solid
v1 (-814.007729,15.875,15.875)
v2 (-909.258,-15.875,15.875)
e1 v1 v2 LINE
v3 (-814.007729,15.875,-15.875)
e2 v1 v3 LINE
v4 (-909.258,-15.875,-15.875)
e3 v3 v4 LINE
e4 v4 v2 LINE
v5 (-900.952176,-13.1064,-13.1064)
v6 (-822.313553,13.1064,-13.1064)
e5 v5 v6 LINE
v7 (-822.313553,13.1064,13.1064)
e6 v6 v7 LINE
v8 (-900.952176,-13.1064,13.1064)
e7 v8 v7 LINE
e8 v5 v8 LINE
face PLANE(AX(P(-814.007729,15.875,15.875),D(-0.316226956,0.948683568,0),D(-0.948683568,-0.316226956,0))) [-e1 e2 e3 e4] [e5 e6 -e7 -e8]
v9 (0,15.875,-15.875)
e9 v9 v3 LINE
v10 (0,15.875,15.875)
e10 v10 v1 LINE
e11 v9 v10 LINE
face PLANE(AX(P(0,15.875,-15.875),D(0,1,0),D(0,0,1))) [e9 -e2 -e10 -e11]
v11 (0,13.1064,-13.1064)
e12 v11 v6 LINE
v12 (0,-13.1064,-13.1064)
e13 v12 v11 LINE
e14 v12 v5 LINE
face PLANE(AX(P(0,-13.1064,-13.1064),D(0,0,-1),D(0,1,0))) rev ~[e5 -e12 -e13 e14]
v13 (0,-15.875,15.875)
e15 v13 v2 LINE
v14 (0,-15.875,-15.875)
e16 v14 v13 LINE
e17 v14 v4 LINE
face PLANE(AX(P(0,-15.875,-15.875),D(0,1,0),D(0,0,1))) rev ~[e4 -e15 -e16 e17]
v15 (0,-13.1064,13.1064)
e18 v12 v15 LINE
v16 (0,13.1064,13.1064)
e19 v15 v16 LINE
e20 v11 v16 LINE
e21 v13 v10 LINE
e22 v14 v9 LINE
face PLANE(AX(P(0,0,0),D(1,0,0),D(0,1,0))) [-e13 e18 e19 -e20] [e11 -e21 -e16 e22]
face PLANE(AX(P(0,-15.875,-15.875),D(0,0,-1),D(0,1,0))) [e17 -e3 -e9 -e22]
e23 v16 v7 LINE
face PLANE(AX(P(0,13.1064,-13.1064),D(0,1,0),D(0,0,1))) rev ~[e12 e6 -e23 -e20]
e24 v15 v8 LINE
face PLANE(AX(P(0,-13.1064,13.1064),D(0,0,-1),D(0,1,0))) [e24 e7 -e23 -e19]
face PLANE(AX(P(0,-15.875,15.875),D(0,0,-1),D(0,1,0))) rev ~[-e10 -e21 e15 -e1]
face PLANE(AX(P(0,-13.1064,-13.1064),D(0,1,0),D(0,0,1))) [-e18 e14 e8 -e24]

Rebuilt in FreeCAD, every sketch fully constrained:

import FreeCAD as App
import Part
import Sketcher
from FreeCAD import Vector
Q = App.Units.Quantity

doc = App.newDocument("Part")
params = doc.addObject("Spreadsheet::Sheet", "Params")
for row, (alias, value) in enumerate([
    ("sketch1_width", "1.25 in"),
    ("sketch1_width2", "1.032 in"),
    ("pad1_length", "909.258 mm"),
    ("sketch2_height", "1.25 in"),
    ("pocket1_length", "1.25 in"),
], start=1):
    params.set(f"A{row}", alias)
    params.set(f"B{row}", "=" + value)
    params.setAlias(f"B{row}", alias)

body = doc.addObject("PartDesign::Body", "Body")

# Sketch on YZ plane
sketch1 = body.newObject("Sketcher::SketchObject", "Sketch")
sketch1.AttachmentSupport = (doc.getObject("YZ_Plane"), [""])
sketch1.MapMode = "FlatFace"
sketch1.addGeometry([
    Part.LineSegment(Vector(-16, 16, 0), Vector(-16, -16, 0)),  # 0
    Part.LineSegment(Vector(-16, -16, 0), Vector(16, -16, 0)),  # 1
    Part.LineSegment(Vector(16, -16, 0), Vector(16, 16, 0)),  # 2
    Part.LineSegment(Vector(16, 16, 0), Vector(-16, 16, 0)),  # 3
    Part.LineSegment(Vector(13, -13, 0), Vector(-13, -13, 0)),  # 4
    Part.LineSegment(Vector(-13, -13, 0), Vector(-13, 13, 0)),  # 5
    Part.LineSegment(Vector(-13, 13, 0), Vector(13, 13, 0)),  # 6
    Part.LineSegment(Vector(13, 13, 0), Vector(13, -13, 0)),  # 7
], False)
sketch1.addConstraint([
    Sketcher.Constraint("Coincident", 0, 2, 1, 1),
    Sketcher.Constraint("Coincident", 1, 2, 2, 1),
    Sketcher.Constraint("Coincident", 2, 2, 3, 1),
    Sketcher.Constraint("Coincident", 3, 2, 0, 1),
    Sketcher.Constraint("Coincident", 4, 2, 5, 1),
    Sketcher.Constraint("Coincident", 5, 2, 6, 1),
    Sketcher.Constraint("Coincident", 6, 2, 7, 1),
    Sketcher.Constraint("Coincident", 7, 2, 4, 1),
    Sketcher.Constraint("Vertical", 0),
    Sketcher.Constraint("Horizontal", 1),
    Sketcher.Constraint("Vertical", 2),
    Sketcher.Constraint("Horizontal", 3),
    Sketcher.Constraint("Horizontal", 4),
    Sketcher.Constraint("Vertical", 5),
    Sketcher.Constraint("Horizontal", 6),
    Sketcher.Constraint("Vertical", 7),
    Sketcher.Constraint("Symmetric", 0, 2, 2, 2, -1, 1),
    Sketcher.Constraint("Symmetric", 4, 2, 6, 2, -1, 1),
    Sketcher.Constraint("Equal", 3, 0),
    Sketcher.Constraint("Equal", 6, 5),
    Sketcher.Constraint("DistanceX", 1, 1, 1, 2, Q("1.25 in")),
    Sketcher.Constraint("DistanceX", 4, 2, 4, 1, Q("1.032 in")),
])
sketch1.setExpression("Constraints[20]", "Params.sketch1_width")
sketch1.setExpression("Constraints[21]", "Params.sketch1_width2")
pad1 = body.newObject("PartDesign::Pad", "Pad")
pad1.Profile = sketch1
pad1.setExpression("Length", "Params.pad1_length")
pad1.Reversed = True

# Sketch on XY plane
sketch2 = body.newObject("Sketcher::SketchObject", "Sketch001")
sketch2.AttachmentSupport = (doc.getObject("XY_Plane"), [""])
sketch2.MapMode = "FlatFace"
sketch2.AttachmentOffset = App.Placement(Vector(0, 0, 0.625 * 25.4), App.Rotation())
sketch2.addGeometry([
    Part.LineSegment(Vector(-909, 16, 0), Vector(-909, -16, 0)),
    Part.LineSegment(Vector(-909, -16, 0), Vector(-814, 16, 0)),
    Part.LineSegment(Vector(-814, 16, 0), Vector(-909, 16, 0)),
], False)
sketch2.addConstraint([
    Sketcher.Constraint("Coincident", 0, 2, 1, 1),
    Sketcher.Constraint("Coincident", 1, 2, 2, 1),
    Sketcher.Constraint("Coincident", 2, 2, 0, 1),
    Sketcher.Constraint("Vertical", 0),
    Sketcher.Constraint("Horizontal", 2),
    Sketcher.Constraint("DistanceY", 0, 2, 0, 1, Q("1.25 in")),
    Sketcher.Constraint("DistanceY", 0, 2, -1, 1, Q("0.625 in")),
    Sketcher.Constraint("DistanceX", 2, 2, 2, 1, Q("95.250271 mm")),
    Sketcher.Constraint("DistanceX", 0, 2, -1, 1, Q("909.258 mm")),
])
sketch2.setExpression("Constraints[5]", "Params.sketch2_height")
pocket1 = body.newObject("PartDesign::Pocket", "Pocket")
pocket1.Profile = sketch2
pocket1.setExpression("Length", "Params.pocket1_length")

doc.recompute()
